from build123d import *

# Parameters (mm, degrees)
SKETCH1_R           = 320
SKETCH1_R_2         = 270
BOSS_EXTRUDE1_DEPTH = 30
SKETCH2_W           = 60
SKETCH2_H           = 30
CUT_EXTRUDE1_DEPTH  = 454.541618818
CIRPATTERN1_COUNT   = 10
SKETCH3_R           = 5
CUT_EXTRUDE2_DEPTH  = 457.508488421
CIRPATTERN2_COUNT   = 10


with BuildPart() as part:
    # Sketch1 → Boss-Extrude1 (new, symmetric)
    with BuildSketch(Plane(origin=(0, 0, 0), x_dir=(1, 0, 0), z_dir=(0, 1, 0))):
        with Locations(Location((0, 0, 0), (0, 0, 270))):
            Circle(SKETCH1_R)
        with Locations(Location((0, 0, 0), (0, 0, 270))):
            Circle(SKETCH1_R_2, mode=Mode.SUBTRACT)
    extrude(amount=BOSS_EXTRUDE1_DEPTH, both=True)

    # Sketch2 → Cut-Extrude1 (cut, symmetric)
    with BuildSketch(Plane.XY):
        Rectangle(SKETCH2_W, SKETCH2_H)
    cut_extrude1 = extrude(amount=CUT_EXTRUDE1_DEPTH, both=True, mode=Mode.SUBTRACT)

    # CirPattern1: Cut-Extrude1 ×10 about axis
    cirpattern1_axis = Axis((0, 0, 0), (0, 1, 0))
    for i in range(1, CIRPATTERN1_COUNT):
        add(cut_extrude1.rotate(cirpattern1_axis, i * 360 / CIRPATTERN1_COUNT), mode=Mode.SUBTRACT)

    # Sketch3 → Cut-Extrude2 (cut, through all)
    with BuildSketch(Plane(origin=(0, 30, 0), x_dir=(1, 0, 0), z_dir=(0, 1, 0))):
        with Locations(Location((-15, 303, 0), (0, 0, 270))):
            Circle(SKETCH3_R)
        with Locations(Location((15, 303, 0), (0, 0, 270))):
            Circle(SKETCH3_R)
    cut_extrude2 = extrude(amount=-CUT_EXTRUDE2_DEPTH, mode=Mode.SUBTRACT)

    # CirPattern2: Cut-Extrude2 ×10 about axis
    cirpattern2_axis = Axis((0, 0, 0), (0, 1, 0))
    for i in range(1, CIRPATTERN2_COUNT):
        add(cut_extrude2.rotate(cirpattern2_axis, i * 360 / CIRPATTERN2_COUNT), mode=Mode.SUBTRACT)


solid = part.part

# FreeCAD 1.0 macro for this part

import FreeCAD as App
import Part
import Sketcher

V = App.Vector


def add_polygon(sketch, points):
    """Adds a closed chain of lines whose ends are joined by coincident constraints."""
    first, n = sketch.GeometryCount, len(points)
    for a, b in zip(points, points[1:] + points[:1]):
        sketch.addGeometry(Part.LineSegment(App.Vector(*a, 0), App.Vector(*b, 0)), False)
    for i in range(n):
        sketch.addConstraint(Sketcher.Constraint("Coincident", first + i, 2, first + (i + 1) % n, 1))

doc = App.newDocument("Part")
body = doc.addObject("PartDesign::Body", "Body")

# Sketch on XZ plane
sketch1 = doc.addObject("Sketcher::SketchObject", "Sketch")
body.addObject(sketch1)
sketch1.AttachmentSupport = (doc.XZ_Plane, [""])
sketch1.MapMode = "FlatFace"
sketch1.addGeometry([
    Part.Circle(V(0, 0, 0), V(0, 0, 1), 320),
    Part.Circle(V(0, 0, 0), V(0, 0, 1), 270),
], False)
sketch1.addConstraint([
    Sketcher.Constraint("Coincident", 0, 3, -1, 1),
    Sketcher.Constraint("Coincident", 1, 3, -1, 1),
    Sketcher.Constraint("Diameter", 0, 640.0),
    Sketcher.Constraint("Diameter", 1, 540.0),
])
pad1 = doc.addObject("PartDesign::Pad", "Pad")
body.addObject(pad1)
pad1.Profile = sketch1
pad1.Length = 60
pad1.Midplane = True

# Sketch on XY plane
sketch2 = doc.addObject("Sketcher::SketchObject", "Sketch001")
body.addObject(sketch2)
sketch2.AttachmentSupport = (doc.XY_Plane, [""])
sketch2.MapMode = "FlatFace"
add_polygon(sketch2, [(-30, 15), (-30, -15), (30, -15), (30, 15)])  # lines 0-3
sketch2.addConstraint([
    Sketcher.Constraint("Vertical", 0),
    Sketcher.Constraint("Horizontal", 1),
    Sketcher.Constraint("Vertical", 2),
    Sketcher.Constraint("Horizontal", 3),
    Sketcher.Constraint("Symmetric", 0, 2, 2, 2, -1, 1),
    Sketcher.Constraint("DistanceX", 1, 1, 1, 2, 60.0),
    Sketcher.Constraint("DistanceY", 0, 2, 0, 1, 30.0),
])
pocket1 = doc.addObject("PartDesign::Pocket", "Pocket")
body.addObject(pocket1)
pocket1.Profile = sketch2
pocket1.Length = 909.083238
pocket1.Midplane = True
doc.recompute()

polarpattern = doc.addObject("PartDesign::PolarPattern", "PolarPattern")
body.addObject(polarpattern)
polarpattern.Originals = [pocket1]
polarpattern.Axis = (doc.Y_Axis, [""])
polarpattern.Angle = 360
polarpattern.Occurrences = 10
body.Tip = polarpattern

# Sketch on XZ plane
sketch3 = doc.addObject("Sketcher::SketchObject", "Sketch002")
body.addObject(sketch3)
sketch3.AttachmentSupport = (doc.XZ_Plane, [""])
sketch3.MapMode = "FlatFace"
sketch3.AttachmentOffset = App.Placement(V(0, 0, -30), App.Rotation())
sketch3.addGeometry([
    Part.Circle(V(-15, -303, 0), V(0, 0, 1), 5),
    Part.Circle(V(15, -303, 0), V(0, 0, 1), 5),
], False)
sketch3.addConstraint([
    Sketcher.Constraint("Equal", 0, 1),
    Sketcher.Constraint("Symmetric", 0, 3, 1, 3, -2),
    Sketcher.Constraint("Diameter", 0, 10.0),
    Sketcher.Constraint("DistanceX", 0, 3, -1, 1, 15.0),
    Sketcher.Constraint("DistanceY", 0, 3, -1, 1, 303.0),
])
pocket2 = doc.addObject("PartDesign::Pocket", "Pocket001")
body.addObject(pocket2)
pocket2.Profile = sketch3
pocket2.Type = "ThroughAll"
pocket2.Reversed = True
doc.recompute()

polarpattern2 = doc.addObject("PartDesign::PolarPattern", "PolarPattern001")
body.addObject(polarpattern2)
polarpattern2.Originals = [pocket2]
polarpattern2.Axis = (doc.Y_Axis, [""])
polarpattern2.Angle = 360
polarpattern2.Occurrences = 10
body.Tip = polarpattern2

doc.recompute()
